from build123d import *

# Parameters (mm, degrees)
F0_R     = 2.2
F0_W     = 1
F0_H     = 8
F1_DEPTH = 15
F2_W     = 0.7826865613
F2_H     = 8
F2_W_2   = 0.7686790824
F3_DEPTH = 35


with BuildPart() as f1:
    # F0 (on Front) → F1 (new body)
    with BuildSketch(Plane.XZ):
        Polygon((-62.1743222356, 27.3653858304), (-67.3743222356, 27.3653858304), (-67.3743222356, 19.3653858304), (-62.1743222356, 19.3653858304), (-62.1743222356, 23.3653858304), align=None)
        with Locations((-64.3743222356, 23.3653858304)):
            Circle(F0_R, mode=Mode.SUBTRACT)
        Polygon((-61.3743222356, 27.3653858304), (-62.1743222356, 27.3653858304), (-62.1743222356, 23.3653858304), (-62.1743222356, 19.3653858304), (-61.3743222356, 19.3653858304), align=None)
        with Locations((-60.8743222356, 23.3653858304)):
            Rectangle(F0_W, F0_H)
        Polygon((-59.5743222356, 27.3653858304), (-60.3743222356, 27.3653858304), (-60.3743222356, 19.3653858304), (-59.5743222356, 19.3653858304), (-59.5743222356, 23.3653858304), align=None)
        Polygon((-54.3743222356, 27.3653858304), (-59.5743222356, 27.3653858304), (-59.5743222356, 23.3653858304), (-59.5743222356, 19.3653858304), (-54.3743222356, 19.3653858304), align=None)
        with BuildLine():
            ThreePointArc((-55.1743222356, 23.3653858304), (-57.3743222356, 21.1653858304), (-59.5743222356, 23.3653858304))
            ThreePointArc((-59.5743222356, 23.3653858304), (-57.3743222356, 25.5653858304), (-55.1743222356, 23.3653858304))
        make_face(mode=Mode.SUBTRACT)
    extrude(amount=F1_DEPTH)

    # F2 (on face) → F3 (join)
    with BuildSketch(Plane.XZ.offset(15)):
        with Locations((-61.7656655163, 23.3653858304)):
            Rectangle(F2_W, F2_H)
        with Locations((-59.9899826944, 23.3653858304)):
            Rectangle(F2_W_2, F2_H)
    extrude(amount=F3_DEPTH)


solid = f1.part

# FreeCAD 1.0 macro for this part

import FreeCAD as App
import Part
import Sketcher

V = App.Vector

doc = App.newDocument("Part")
params = doc.addObject("Spreadsheet::Sheet", "Params")
for row, (alias, value) in enumerate([
    ("sketch1_diameter", "4.4 mm"),
    ("sketch1_width", "13 mm"),
    ("sketch1_height", "8 mm"),
    ("pad1_length", "15 mm"),
    ("sketch2_height", "8 mm"),
    ("pad2_length", "35 mm"),
], start=1):
    params.set(f"A{row}", alias)
    params.set(f"B{row}", "=" + value)
    params.setAlias(f"B{row}", alias)

body = doc.addObject("PartDesign::Body", "Body")

sketch1 = body.newObject("Sketcher::SketchObject", "Sketch")
sketch1.AttachmentSupport = (doc.getObject("XZ_Plane"), [""])
sketch1.MapMode = "FlatFace"
sketch1.addGeometry([
    Part.LineSegment(V(-67.374322, 19.365386, 0), V(-54.374322, 19.365386, 0)),
    Part.LineSegment(V(-54.374322, 19.365386, 0), V(-54.374322, 27.365386, 0)),
    Part.LineSegment(V(-54.374322, 27.365386, 0), V(-67.374322, 27.365386, 0)),
    Part.LineSegment(V(-67.374322, 27.365386, 0), V(-67.374322, 19.365386, 0)),
    Part.Circle(V(-64.374322, 23.365386, 0), V(0, 0, 1), 2.2),
    Part.Circle(V(-57.374322, 23.365386, 0), V(0, 0, 1), 2.2),
], False)
sketch1.addConstraint([
    Sketcher.Constraint("Coincident", 0, 2, 1, 1),
    Sketcher.Constraint("Coincident", 1, 2, 2, 1),
    Sketcher.Constraint("Coincident", 2, 2, 3, 1),
    Sketcher.Constraint("Coincident", 3, 2, 0, 1),
    Sketcher.Constraint("Horizontal", 0),
    Sketcher.Constraint("Vertical", 1),
    Sketcher.Constraint("Horizontal", 2),
    Sketcher.Constraint("Vertical", 3),
    Sketcher.Constraint("Equal", 4, 5),
    Sketcher.Constraint("Horizontal", 4, 3, 5, 3),
    Sketcher.Constraint("Diameter", 4, 4.4),
    Sketcher.Constraint("DistanceX", 0, 1, 0, 2, 13.0),
    Sketcher.Constraint("DistanceY", 1, 1, 1, 2, 8.0),
    Sketcher.Constraint("DistanceX", 4, 3, 5, 3, 7.0),
    Sketcher.Constraint("DistanceX", 5, 3, 0, 2, 3.0),
    Sketcher.Constraint("DistanceY", 0, 2, 5, 3, 4.0),
    Sketcher.Constraint("DistanceX", 4, 3, -1, 1, 64.374322),
    Sketcher.Constraint("DistanceY", -1, 1, 4, 3, 23.365386),
])
sketch1.setExpression("Constraints[10]", "Params.sketch1_diameter")
sketch1.setExpression("Constraints[11]", "Params.sketch1_width")
sketch1.setExpression("Constraints[12]", "Params.sketch1_height")
pad1 = body.newObject("PartDesign::Pad", "Pad")
pad1.Profile = sketch1
pad1.setExpression("Length", "Params.pad1_length")

sketch2 = body.newObject("Sketcher::SketchObject", "Sketch001")
sketch2.AttachmentSupport = (doc.getObject("XZ_Plane"), [""])
sketch2.MapMode = "FlatFace"
sketch2.AttachmentOffset = App.Placement(V(0, 0, 15), App.Rotation())
sketch2.addGeometry([
    Part.LineSegment(V(-62.157009, 27.365386, 0), V(-62.157009, 19.365386, 0)),
    Part.LineSegment(V(-62.157009, 19.365386, 0), V(-61.374322, 19.365386, 0)),
    Part.LineSegment(V(-61.374322, 19.365386, 0), V(-61.374322, 27.365386, 0)),
    Part.LineSegment(V(-61.374322, 27.365386, 0), V(-62.157009, 27.365386, 0)),
    Part.LineSegment(V(-60.374322, 27.365386, 0), V(-60.374322, 19.365386, 0)),
    Part.LineSegment(V(-60.374322, 19.365386, 0), V(-59.605643, 19.365386, 0)),
    Part.LineSegment(V(-59.605643, 19.365386, 0), V(-59.605643, 27.365386, 0)),
    Part.LineSegment(V(-59.605643, 27.365386, 0), V(-60.374322, 27.365386, 0)),
], False)
sketch2.addConstraint([
    Sketcher.Constraint("Coincident", 0, 2, 1, 1),
    Sketcher.Constraint("Coincident", 1, 2, 2, 1),
    Sketcher.Constraint("Coincident", 2, 2, 3, 1),
    Sketcher.Constraint("Coincident", 3, 2, 0, 1),
    Sketcher.Constraint("Coincident", 4, 2, 5, 1),
    Sketcher.Constraint("Coincident", 5, 2, 6, 1),
    Sketcher.Constraint("Coincident", 6, 2, 7, 1),
    Sketcher.Constraint("Coincident", 7, 2, 4, 1),
    Sketcher.Constraint("Vertical", 0),
    Sketcher.Constraint("Horizontal", 1),
    Sketcher.Constraint("Vertical", 2),
    Sketcher.Constraint("Horizontal", 3),
    Sketcher.Constraint("Vertical", 4),
    Sketcher.Constraint("Horizontal", 5),
    Sketcher.Constraint("Vertical", 6),
    Sketcher.Constraint("Horizontal", 7),
    Sketcher.Constraint("Horizontal", 1, 2, 4, 2),
    Sketcher.Constraint("Horizontal", 3, 2, 6, 2),
    Sketcher.Constraint("DistanceY", 0, 2, 0, 1, 8.0),
    Sketcher.Constraint("DistanceX", 1, 2, 4, 2, 1.0),
    Sketcher.Constraint("DistanceX", 5, 1, 5, 2, 0.768679),
    Sketcher.Constraint("DistanceX", 1, 1, 1, 2, 0.782687),
    Sketcher.Constraint("DistanceX", 0, 2, -1, 1, 62.157009),
    Sketcher.Constraint("DistanceY", -1, 1, 0, 2, 19.365386),
])
sketch2.setExpression("Constraints[18]", "Params.sketch2_height")
pad2 = body.newObject("PartDesign::Pad", "Pad001")
pad2.Profile = sketch2
pad2.setExpression("Length", "Params.pad2_length")

doc.recompute()
